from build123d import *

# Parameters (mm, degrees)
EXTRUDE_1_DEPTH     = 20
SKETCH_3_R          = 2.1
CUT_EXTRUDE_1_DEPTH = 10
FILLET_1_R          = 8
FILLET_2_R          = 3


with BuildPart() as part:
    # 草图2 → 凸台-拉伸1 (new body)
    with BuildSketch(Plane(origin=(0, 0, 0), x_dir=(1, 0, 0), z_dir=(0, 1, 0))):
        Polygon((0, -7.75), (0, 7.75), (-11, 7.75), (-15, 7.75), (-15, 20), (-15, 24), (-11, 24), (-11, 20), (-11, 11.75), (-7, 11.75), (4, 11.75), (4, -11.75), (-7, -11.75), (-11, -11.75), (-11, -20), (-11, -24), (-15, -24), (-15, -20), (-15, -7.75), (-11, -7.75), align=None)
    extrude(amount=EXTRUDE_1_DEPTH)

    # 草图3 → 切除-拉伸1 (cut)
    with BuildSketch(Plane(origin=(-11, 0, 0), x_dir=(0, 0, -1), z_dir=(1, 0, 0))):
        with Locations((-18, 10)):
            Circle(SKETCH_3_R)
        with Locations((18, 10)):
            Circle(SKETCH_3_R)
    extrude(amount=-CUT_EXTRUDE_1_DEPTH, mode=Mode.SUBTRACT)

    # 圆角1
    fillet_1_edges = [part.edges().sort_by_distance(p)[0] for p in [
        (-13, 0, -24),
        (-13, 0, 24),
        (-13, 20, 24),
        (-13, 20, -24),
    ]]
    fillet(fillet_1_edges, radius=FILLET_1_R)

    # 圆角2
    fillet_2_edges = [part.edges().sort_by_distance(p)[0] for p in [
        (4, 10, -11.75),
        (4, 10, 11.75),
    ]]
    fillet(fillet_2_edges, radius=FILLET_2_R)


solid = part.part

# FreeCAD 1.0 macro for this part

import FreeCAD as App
import Part
import Sketcher
from FreeCAD import Vector
Q = App.Units.Quantity


def edges_at(feature, points):
    """Names of the edges that pass closest to the given points."""
    edges = feature.Shape.Edges
    near = lambda p: min(range(len(edges)), key=lambda i: edges[i].distToShape(Part.Vertex(*p))[0])
    return sorted({f"Edge{near(p) + 1}" for p in points})


def add_polygon(sketch, points):
    """Adds a closed chain of lines whose ends are joined by coincident constraints."""
    first, n = sketch.GeometryCount, len(points)
    for a, b in zip(points, points[1:] + points[:1]):
        sketch.addGeometry(Part.LineSegment(App.Vector(*a, 0), App.Vector(*b, 0)), False)
    for i in range(n):
        sketch.addConstraint(Sketcher.Constraint("Coincident", first + i, 2, first + (i + 1) % n, 1))

doc = App.newDocument("Part")
params = doc.addObject("Spreadsheet::Sheet", "Params")
for row, (alias, value) in enumerate([
    ("sketch1_width", "15 mm"),
    ("sketch1_width2", "4 mm"),
    ("sketch1_height", "15.5 mm"),
    ("sketch1_height2", "23.5 mm"),
    ("pad1_length", "20 mm"),
    ("sketch2_diameter", "4.2 mm"),
    ("pocket1_length", "10 mm"),
    ("fillet_radius", "8 mm"),
    ("fillet2_radius", "3 mm"),
], start=1):
    params.set(f"A{row}", alias)
    params.set(f"B{row}", "=" + value)
    params.setAlias(f"B{row}", alias)

body = doc.addObject("PartDesign::Body", "Body")

# Sketch on XZ plane
sketch1 = doc.addObject("Sketcher::SketchObject", "Sketch")
body.addObject(sketch1)
sketch1.AttachmentSupport = (doc.XZ_Plane, [""])
sketch1.MapMode = "FlatFace"
add_polygon(sketch1, [(0, -7.8), (0, 7.8), (-15, 7.8), (-15, 24), (-11, 24), (-11, 11.8), (4, 11.8), (4, -11.8), (-11, -11.8), (-11, -24), (-15, -24), (-15, -7.8)])  # lines 0-11
sketch1.addConstraint(Sketcher.Constraint("Vertical", 0))
sketch1.addConstraint(Sketcher.Constraint("Horizontal", 1))
sketch1.addConstraint(Sketcher.Constraint("Vertical", 2))
sketch1.addConstraint(Sketcher.Constraint("Horizontal", 3))
sketch1.addConstraint(Sketcher.Constraint("Vertical", 4))
sketch1.addConstraint(Sketcher.Constraint("Horizontal", 5))
sketch1.addConstraint(Sketcher.Constraint("Vertical", 6))
sketch1.addConstraint(Sketcher.Constraint("Horizontal", 7))
sketch1.addConstraint(Sketcher.Constraint("Vertical", 8))
sketch1.addConstraint(Sketcher.Constraint("Horizontal", 9))
sketch1.addConstraint(Sketcher.Constraint("Vertical", 10))
sketch1.addConstraint(Sketcher.Constraint("Horizontal", 11))
sketch1.addConstraint(Sketcher.Constraint("Symmetric", 0, 2, 11, 2, -1, 1))
sketch1.addConstraint(Sketcher.Constraint("Symmetric", 4, 2, 7, 2, -1))
sketch1.addConstraint(Sketcher.Constraint("Symmetric", 2, 2, 9, 2, -1))
sketch1.addConstraint(Sketcher.Constraint("Equal", 1, 5))
sketch1.addConstraint(Sketcher.Constraint("DistanceX", 1, 2, 1, 1, Q("15 mm")))
sketch1.addConstraint(Sketcher.Constraint("DistanceX", 3, 1, 3, 2, Q("4 mm")))
sketch1.addConstraint(Sketcher.Constraint("DistanceY", 0, 1, 0, 2, Q("15.5 mm")))
sketch1.addConstraint(Sketcher.Constraint("DistanceY", 6, 2, 6, 1, Q("23.5 mm")))
sketch1.addConstraint(Sketcher.Constraint("DistanceY", -1, 1, 2, 2, Q("24 mm")))
sketch1.setExpression("Constraints[28]", "Params.sketch1_width")
sketch1.setExpression("Constraints[29]", "Params.sketch1_width2")
sketch1.setExpression("Constraints[30]", "Params.sketch1_height")
sketch1.setExpression("Constraints[31]", "Params.sketch1_height2")
pad1 = doc.addObject("PartDesign::Pad", "Pad")
body.addObject(pad1)
pad1.Profile = sketch1
pad1.setExpression("Length", "Params.pad1_length")
pad1.Reversed = True

# Sketch on YZ plane
sketch2 = doc.addObject("Sketcher::SketchObject", "Sketch001")
body.addObject(sketch2)
sketch2.AttachmentSupport = (doc.YZ_Plane, [""])
sketch2.MapMode = "FlatFace"
sketch2.AttachmentOffset = App.Placement(Vector(0, 0, -11), App.Rotation())
sketch2.addGeometry(Part.Circle(Vector(10, 18, 0), Vector(0, 0, 1), 2.1), False)
sketch2.addGeometry(Part.Circle(Vector(10, -18, 0), Vector(0, 0, 1), 2.1), False)
sketch2.addConstraint(Sketcher.Constraint("Equal", 0, 1))
sketch2.addConstraint(Sketcher.Constraint("Symmetric", 0, 3, 1, 3, -1))
sketch2.addConstraint(Sketcher.Constraint("Diameter", 0, Q("4.2 mm")))
sketch2.addConstraint(Sketcher.Constraint("DistanceX", -1, 1, 0, 3, Q("10 mm")))
sketch2.addConstraint(Sketcher.Constraint("DistanceY", -1, 1, 0, 3, Q("18 mm")))
sketch2.setExpression("Constraints[2]", "Params.sketch2_diameter")
pocket1 = doc.addObject("PartDesign::Pocket", "Pocket")
body.addObject(pocket1)
pocket1.Profile = sketch2
pocket1.setExpression("Length", "Params.pocket1_length")
doc.recompute()

fillet = doc.addObject("PartDesign::Fillet", "Fillet")
body.addObject(fillet)
fillet.Base = (pocket1, edges_at(pocket1, [
    (-13, 0, -24),
    (-13, 0, 24),
    (-13, 20, 24),
    (-13, 20, -24),
]))
fillet.setExpression("Radius", "Params.fillet_radius")
doc.recompute()

fillet2 = doc.addObject("PartDesign::Fillet", "Fillet001")
body.addObject(fillet2)
fillet2.Base = (fillet, edges_at(fillet, [(4, 10, -11.75), (4, 10, 11.75)]))
fillet2.setExpression("Radius", "Params.fillet2_radius")

doc.recompute()
